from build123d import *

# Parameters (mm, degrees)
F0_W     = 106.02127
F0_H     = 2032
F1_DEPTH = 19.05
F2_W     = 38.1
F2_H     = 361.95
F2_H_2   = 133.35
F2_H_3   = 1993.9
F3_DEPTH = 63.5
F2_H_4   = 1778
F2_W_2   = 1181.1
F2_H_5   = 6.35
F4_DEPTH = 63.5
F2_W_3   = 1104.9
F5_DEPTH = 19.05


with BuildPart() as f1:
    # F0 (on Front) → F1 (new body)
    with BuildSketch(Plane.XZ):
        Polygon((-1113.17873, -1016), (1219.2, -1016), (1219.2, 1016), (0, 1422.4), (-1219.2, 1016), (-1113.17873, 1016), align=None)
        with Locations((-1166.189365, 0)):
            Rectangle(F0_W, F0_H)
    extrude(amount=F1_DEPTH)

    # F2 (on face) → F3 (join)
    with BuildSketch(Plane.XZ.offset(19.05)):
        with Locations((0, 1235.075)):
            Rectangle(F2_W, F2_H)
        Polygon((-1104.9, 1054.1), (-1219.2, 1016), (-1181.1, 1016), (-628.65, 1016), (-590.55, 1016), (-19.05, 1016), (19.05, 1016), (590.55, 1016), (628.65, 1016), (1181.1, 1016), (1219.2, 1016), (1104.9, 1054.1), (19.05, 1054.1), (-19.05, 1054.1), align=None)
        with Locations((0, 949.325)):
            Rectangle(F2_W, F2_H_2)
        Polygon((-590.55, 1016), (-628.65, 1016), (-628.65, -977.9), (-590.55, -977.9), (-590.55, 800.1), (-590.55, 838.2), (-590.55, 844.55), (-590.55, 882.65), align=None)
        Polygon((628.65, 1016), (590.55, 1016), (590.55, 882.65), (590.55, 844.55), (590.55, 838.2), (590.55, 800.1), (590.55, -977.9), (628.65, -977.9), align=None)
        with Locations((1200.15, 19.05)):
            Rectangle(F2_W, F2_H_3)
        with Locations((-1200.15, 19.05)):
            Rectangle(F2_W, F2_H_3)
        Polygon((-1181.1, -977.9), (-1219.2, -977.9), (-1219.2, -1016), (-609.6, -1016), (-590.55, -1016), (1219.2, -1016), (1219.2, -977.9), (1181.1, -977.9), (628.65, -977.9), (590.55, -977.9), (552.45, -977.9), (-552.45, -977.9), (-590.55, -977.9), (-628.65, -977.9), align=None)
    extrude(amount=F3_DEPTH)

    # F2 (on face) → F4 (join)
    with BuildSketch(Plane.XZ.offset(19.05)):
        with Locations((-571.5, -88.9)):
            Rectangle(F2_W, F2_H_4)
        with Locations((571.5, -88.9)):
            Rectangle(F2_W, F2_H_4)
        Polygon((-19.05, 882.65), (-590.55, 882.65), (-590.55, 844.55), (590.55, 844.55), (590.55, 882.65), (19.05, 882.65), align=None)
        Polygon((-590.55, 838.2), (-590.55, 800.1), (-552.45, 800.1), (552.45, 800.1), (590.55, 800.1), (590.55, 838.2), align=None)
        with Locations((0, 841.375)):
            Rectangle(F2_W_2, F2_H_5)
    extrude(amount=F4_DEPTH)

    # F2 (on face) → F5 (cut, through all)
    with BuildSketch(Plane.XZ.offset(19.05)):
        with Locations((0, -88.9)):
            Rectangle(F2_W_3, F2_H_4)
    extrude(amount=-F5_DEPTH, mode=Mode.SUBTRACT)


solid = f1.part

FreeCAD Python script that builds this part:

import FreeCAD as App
import Part
import Sketcher
from FreeCAD import Vector
Q = App.Units.Quantity

doc = App.newDocument("Part")
params = doc.addObject("Spreadsheet::Sheet", "Params")
for row, (alias, value) in enumerate([
    ("sketch1_width", "96 in"),
    ("sketch1_height", "80 in"),
    ("pad1_length", "0.75 in"),
    ("sketch2_width", "96 in"),
    ("sketch2_height", "80 in"),
    ("sketch2_width2", "1.5 in"),
    ("sketch2_width3", "22.5 in"),
    ("sketch2_height2", "78.5 in"),
    ("pad2_length", "2.5 in"),
    ("sketch3_height", "70 in"),
    ("sketch3_width", "1.5 in"),
    ("sketch3_width2", "43.5 in"),
    ("sketch3_height2", "73.25 in"),
    ("pad3_length", "2.5 in"),
    ("sketch4_height", "70 in"),
    ("sketch4_width", "43.5 in"),
], start=1):
    params.set(f"A{row}", alias)
    params.set(f"B{row}", "=" + value)
    params.setAlias(f"B{row}", alias)

body = doc.addObject("PartDesign::Body", "Body")

# Sketch on XZ plane
sketch1 = body.newObject("Sketcher::SketchObject", "Sketch")
sketch1.AttachmentSupport = (doc.getObject("XZ_Plane"), [""])
sketch1.MapMode = "FlatFace"
sketch1.addGeometry(Part.LineSegment(Vector(1219, -1016, 0), Vector(1219, 1016, 0)), False)
sketch1.addGeometry(Part.LineSegment(Vector(1219, 1016, 0), Vector(0, 1422, 0)), False)
sketch1.addGeometry(Part.LineSegment(Vector(0, 1422, 0), Vector(-1219, 1016, 0)), False)
sketch1.addGeometry(Part.LineSegment(Vector(-1219, 1016, 0), Vector(-1219, -1016, 0)), False)
sketch1.addGeometry(Part.LineSegment(Vector(-1219, -1016, 0), Vector(1219, -1016, 0)), False)
sketch1.addConstraint(Sketcher.Constraint("Coincident", 0, 2, 1, 1))
sketch1.addConstraint(Sketcher.Constraint("Coincident", 1, 2, 2, 1))
sketch1.addConstraint(Sketcher.Constraint("Coincident", 2, 2, 3, 1))
sketch1.addConstraint(Sketcher.Constraint("Coincident", 3, 2, 4, 1))
sketch1.addConstraint(Sketcher.Constraint("Coincident", 4, 2, 0, 1))
sketch1.addConstraint(Sketcher.Constraint("Vertical", 0))
sketch1.addConstraint(Sketcher.Constraint("Vertical", 3))
sketch1.addConstraint(Sketcher.Constraint("Horizontal", 4))
sketch1.addConstraint(Sketcher.Constraint("Symmetric", 0, 2, 3, 2, -1, 1))
sketch1.addConstraint(Sketcher.Constraint("PointOnObject", 1, 2, -2))
sketch1.addConstraint(Sketcher.Constraint("Horizontal", 0, 2, 2, 2))
sketch1.addConstraint(Sketcher.Constraint("DistanceX", 4, 1, 4, 2, Q("96 in")))
sketch1.addConstraint(Sketcher.Constraint("DistanceY", 0, 1, 0, 2, Q("80 in")))
sketch1.addConstraint(Sketcher.Constraint("DistanceY", -1, 1, 1, 2, Q("56 in")))
sketch1.setExpression("Constraints[11]", "Params.sketch1_width")
sketch1.setExpression("Constraints[12]", "Params.sketch1_height")
pad1 = body.newObject("PartDesign::Pad", "Pad")
pad1.Profile = sketch1
pad1.setExpression("Length", "Params.pad1_length")

# Sketch on XZ plane
sketch2 = body.newObject("Sketcher::SketchObject", "Sketch001")
sketch2.AttachmentSupport = (doc.getObject("XZ_Plane"), [""])
sketch2.MapMode = "FlatFace"
sketch2.AttachmentOffset = App.Placement(Vector(0, 0, 0.75 * 25.4), App.Rotation())
sketch2.addGeometry(Part.LineSegment(Vector(-19, 1416, 0), Vector(-19, 1054, 0)), False)
sketch2.addGeometry(Part.LineSegment(Vector(-19, 1054, 0), Vector(-1105, 1054, 0)), False)
sketch2.addGeometry(Part.LineSegment(Vector(-1105, 1054, 0), Vector(-1219, 1016, 0)), False)
sketch2.addGeometry(Part.LineSegment(Vector(-1219, 1016, 0), Vector(-1219, -1016, 0)), False)
sketch2.addGeometry(Part.LineSegment(Vector(-1219, -1016, 0), Vector(1219, -1016, 0)), False)
sketch2.addGeometry(Part.LineSegment(Vector(1219, -1016, 0), Vector(1219, 1016, 0)), False)
sketch2.addGeometry(Part.LineSegment(Vector(1219, 1016, 0), Vector(1105, 1054, 0)), False)
sketch2.addGeometry(Part.LineSegment(Vector(1105, 1054, 0), Vector(19, 1054, 0)), False)
sketch2.addGeometry(Part.LineSegment(Vector(19, 1054, 0), Vector(19, 1416, 0)), False)
sketch2.addGeometry(Part.LineSegment(Vector(19, 1416, 0), Vector(-19, 1416, 0)), False)
sketch2.addGeometry(Part.LineSegment(Vector(-1181, -978, 0), Vector(-1181, 1016, 0)), False)
sketch2.addGeometry(Part.LineSegment(Vector(-1181, 1016, 0), Vector(-629, 1016, 0)), False)
sketch2.addGeometry(Part.LineSegment(Vector(-629, 1016, 0), Vector(-629, -978, 0)), False)
sketch2.addGeometry(Part.LineSegment(Vector(-629, -978, 0), Vector(-1181, -978, 0)), False)
sketch2.addGeometry(Part.LineSegment(Vector(-591, -978, 0), Vector(-591, 1016, 0)), False)
sketch2.addGeometry(Part.LineSegment(Vector(-591, 1016, 0), Vector(-19, 1016, 0)), False)
sketch2.addGeometry(Part.LineSegment(Vector(-19, 1016, 0), Vector(-19, 883, 0)), False)
sketch2.addGeometry(Part.LineSegment(Vector(-19, 883, 0), Vector(19, 883, 0)), False)
sketch2.addGeometry(Part.LineSegment(Vector(19, 883, 0), Vector(19, 1016, 0)), False)
sketch2.addGeometry(Part.LineSegment(Vector(19, 1016, 0), Vector(591, 1016, 0)), False)
sketch2.addGeometry(Part.LineSegment(Vector(591, 1016, 0), Vector(591, -978, 0)), False)
sketch2.addGeometry(Part.LineSegment(Vector(591, -978, 0), Vector(-591, -978, 0)), False)
sketch2.addGeometry(Part.LineSegment(Vector(629, -978, 0), Vector(629, 1016, 0)), False)
sketch2.addGeometry(Part.LineSegment(Vector(629, 1016, 0), Vector(1181, 1016, 0)), False)
sketch2.addGeometry(Part.LineSegment(Vector(1181, 1016, 0), Vector(1181, -978, 0)), False)
sketch2.addGeometry(Part.LineSegment(Vector(1181, -978, 0), Vector(629, -978, 0)), False)
sketch2.addConstraint(Sketcher.Constraint("Coincident", 0, 2, 1, 1))
sketch2.addConstraint(Sketcher.Constraint("Coincident", 1, 2, 2, 1))
sketch2.addConstraint(Sketcher.Constraint("Coincident", 2, 2, 3, 1))
sketch2.addConstraint(Sketcher.Constraint("Coincident", 3, 2, 4, 1))
sketch2.addConstraint(Sketcher.Constraint("Coincident", 4, 2, 5, 1))
sketch2.addConstraint(Sketcher.Constraint("Coincident", 5, 2, 6, 1))
sketch2.addConstraint(Sketcher.Constraint("Coincident", 6, 2, 7, 1))
sketch2.addConstraint(Sketcher.Constraint("Coincident", 7, 2, 8, 1))
sketch2.addConstraint(Sketcher.Constraint("Coincident", 8, 2, 9, 1))
sketch2.addConstraint(Sketcher.Constraint("Coincident", 9, 2, 0, 1))
sketch2.addConstraint(Sketcher.Constraint("Coincident", 10, 2, 11, 1))
sketch2.addConstraint(Sketcher.Constraint("Coincident", 11, 2, 12, 1))
sketch2.addConstraint(Sketcher.Constraint("Coincident", 12, 2, 13, 1))
sketch2.addConstraint(Sketcher.Constraint("Coincident", 13, 2, 10, 1))
sketch2.addConstraint(Sketcher.Constraint("Coincident", 14, 2, 15, 1))
sketch2.addConstraint(Sketcher.Constraint("Coincident", 15, 2, 16, 1))
sketch2.addConstraint(Sketcher.Constraint("Coincident", 16, 2, 17, 1))
sketch2.addConstraint(Sketcher.Constraint("Coincident", 17, 2, 18, 1))
sketch2.addConstraint(Sketcher.Constraint("Coincident", 18, 2, 19, 1))
sketch2.addConstraint(Sketcher.Constraint("Coincident", 19, 2, 20, 1))
sketch2.addConstraint(Sketcher.Constraint("Coincident", 20, 2, 21, 1))
sketch2.addConstraint(Sketcher.Constraint("Coincident", 21, 2, 14, 1))
sketch2.addConstraint(Sketcher.Constraint("Coincident", 22, 2, 23, 1))
sketch2.addConstraint(Sketcher.Constraint("Coincident", 23, 2, 24, 1))
sketch2.addConstraint(Sketcher.Constraint("Coincident", 24, 2, 25, 1))
sketch2.addConstraint(Sketcher.Constraint("Coincident", 25, 2, 22, 1))
sketch2.addConstraint(Sketcher.Constraint("Vertical", 0))
sketch2.addConstraint(Sketcher.Constraint("Horizontal", 1))
sketch2.addConstraint(Sketcher.Constraint("Vertical", 3))
sketch2.addConstraint(Sketcher.Constraint("Horizontal", 4))
sketch2.addConstraint(Sketcher.Constraint("Vertical", 5))
sketch2.addConstraint(Sketcher.Constraint("Horizontal", 7))
sketch2.addConstraint(Sketcher.Constraint("Vertical", 8))
sketch2.addConstraint(Sketcher.Constraint("Horizontal", 9))
sketch2.addConstraint(Sketcher.Constraint("Vertical", 10))
sketch2.addConstraint(Sketcher.Constraint("Horizontal", 11))
sketch2.addConstraint(Sketcher.Constraint("Vertical", 12))
sketch2.addConstraint(Sketcher.Constraint("Horizontal", 13))
sketch2.addConstraint(Sketcher.Constraint("Vertical", 14))
sketch2.addConstraint(Sketcher.Constraint("Horizontal", 15))
sketch2.addConstraint(Sketcher.Constraint("Vertical", 16))
sketch2.addConstraint(Sketcher.Constraint("Horizontal", 17))
sketch2.addConstraint(Sketcher.Constraint("Vertical", 18))
sketch2.addConstraint(Sketcher.Constraint("Horizontal", 19))
sketch2.addConstraint(Sketcher.Constraint("Vertical", 20))
sketch2.addConstraint(Sketcher.Constraint("Horizontal", 21))
sketch2.addConstraint(Sketcher.Constraint("Vertical", 22))
sketch2.addConstraint(Sketcher.Constraint("Horizontal", 23))
sketch2.addConstraint(Sketcher.Constraint("Vertical", 24))
sketch2.addConstraint(Sketcher.Constraint("Horizontal", 25))
sketch2.addConstraint(Sketcher.Constraint("Symmetric", 2, 2, 4, 2, -1, 1))
sketch2.addConstraint(Sketcher.Constraint("Symmetric", 1, 2, 6, 2, -2))
sketch2.addConstraint(Sketcher.Constraint("Symmetric", 15, 2, 18, 2, -2))
sketch2.addConstraint(Sketcher.Constraint("Symmetric", 11, 2, 22, 2, -2))
sketch2.addConstraint(Sketcher.Constraint("Symmetric", 13, 2, 24, 2, -2))
sketch2.addConstraint(Sketcher.Constraint("Horizontal", 2, 2, 5, 2))
sketch2.addConstraint(Sketcher.Constraint("Horizontal", 5, 2, 10, 2))
sketch2.addConstraint(Sketcher.Constraint("Horizontal", 11, 2, 14, 2))
sketch2.addConstraint(Sketcher.Constraint("Horizontal", 13, 2, 20, 2))
sketch2.addConstraint(Sketcher.Constraint("Vertical", 9, 2, 15, 2))
sketch2.addConstraint(Sketcher.Constraint("Vertical", 8, 2, 17, 2))
sketch2.addConstraint(Sketcher.Constraint("Equal", 15, 19))
sketch2.addConstraint(Sketcher.Constraint("DistanceX", 4, 1, 4, 2, Q("96 in")))
sketch2.addConstraint(Sketcher.Constraint("DistanceY", 3, 2, 3, 1, Q("80 in")))
sketch2.addConstraint(Sketcher.Constraint("DistanceX", 9, 2, 9, 1, Q("1.5 in")))
sketch2.addConstraint(Sketcher.Constraint("DistanceX", 15, 1, 15, 2, Q("22.5 in")))
sketch2.addConstraint(Sketcher.Constraint("DistanceY", 10, 1, 10, 2, Q("78.5 in")))
sketch2.addConstraint(Sketcher.Constraint("DistanceX", 1, 2, 6, 2, Q("87 in")))
sketch2.addConstraint(Sketcher.Constraint("DistanceX", 10, 2, 1, 2, Q("3 in")))
sketch2.addConstraint(Sketcher.Constraint("DistanceX", 11, 2, 0, 2, Q("24 in")))
sketch2.addConstraint(Sketcher.Constraint("DistanceY", 13, 2, 1, 2, Q("80 in")))
sketch2.addConstraint(Sketcher.Constraint("DistanceY", 16, 2, 9, 2, Q("21 in")))
sketch2.addConstraint(Sketcher.Constraint("DistanceY", 0, 2, 0, 1, Q("14.25 in")))
sketch2.setExpression("Constraints[62]", "Params.sketch2_width")
sketch2.setExpression("Constraints[63]", "Params.sketch2_height")
sketch2.setExpression("Constraints[64]", "Params.sketch2_width2")
sketch2.setExpression("Constraints[65]", "Params.sketch2_width3")
sketch2.setExpression("Constraints[66]", "Params.sketch2_height2")
pad2 = body.newObject("PartDesign::Pad", "Pad001")
pad2.Profile = sketch2
pad2.setExpression("Length", "Params.pad2_length")

# Sketch on XZ plane
sketch3 = body.newObject("Sketcher::SketchObject", "Sketch002")
sketch3.AttachmentSupport = (doc.getObject("XZ_Plane"), [""])
sketch3.MapMode = "FlatFace"
sketch3.AttachmentOffset = App.Placement(Vector(0, 0, 0.75 * 25.4), App.Rotation())
sketch3.addGeometry(Part.LineSegment(Vector(-591, -978, 0), Vector(-552, -978, 0)), False)
sketch3.addGeometry(Part.LineSegment(Vector(-552, -978, 0), Vector(-552, 800, 0)), False)
sketch3.addGeometry(Part.LineSegment(Vector(-552, 800, 0), Vector(552, 800, 0)), False)
sketch3.addGeometry(Part.LineSegment(Vector(552, 800, 0), Vector(552, -978, 0)), False)
sketch3.addGeometry(Part.LineSegment(Vector(552, -978, 0), Vector(591, -978, 0)), False)
sketch3.addGeometry(Part.LineSegment(Vector(591, -978, 0), Vector(591, 883, 0)), False)
sketch3.addGeometry(Part.LineSegment(Vector(591, 883, 0), Vector(-591, 883, 0)), False)
sketch3.addGeometry(Part.LineSegment(Vector(-591, 883, 0), Vector(-591, -978, 0)), False)
sketch3.addConstraint(Sketcher.Constraint("Coincident", 0, 2, 1, 1))
sketch3.addConstraint(Sketcher.Constraint("Coincident", 1, 2, 2, 1))
sketch3.addConstraint(Sketcher.Constraint("Coincident", 2, 2, 3, 1))
sketch3.addConstraint(Sketcher.Constraint("Coincident", 3, 2, 4, 1))
sketch3.addConstraint(Sketcher.Constraint("Coincident", 4, 2, 5, 1))
sketch3.addConstraint(Sketcher.Constraint("Coincident", 5, 2, 6, 1))
sketch3.addConstraint(Sketcher.Constraint("Coincident", 6, 2, 7, 1))
sketch3.addConstraint(Sketcher.Constraint("Coincident", 7, 2, 0, 1))
sketch3.addConstraint(Sketcher.Constraint("Horizontal", 0))
sketch3.addConstraint(Sketcher.Constraint("Vertical", 1))
sketch3.addConstraint(Sketcher.Constraint("Horizontal", 2))
sketch3.addConstraint(Sketcher.Constraint("Vertical", 3))
sketch3.addConstraint(Sketcher.Constraint("Horizontal", 4))
sketch3.addConstraint(Sketcher.Constraint("Vertical", 5))
sketch3.addConstraint(Sketcher.Constraint("Horizontal", 6))
sketch3.addConstraint(Sketcher.Constraint("Vertical", 7))
sketch3.addConstraint(Sketcher.Constraint("Symmetric", 0, 2, 3, 2, -2))
sketch3.addConstraint(Sketcher.Constraint("Equal", 0, 4))
sketch3.addConstraint(Sketcher.Constraint("DistanceY", 1, 1, 1, 2, Q("70 in")))
sketch3.addConstraint(Sketcher.Constraint("DistanceX", 0, 1, 0, 2, Q("1.5 in")))
sketch3.addConstraint(Sketcher.Constraint("DistanceX", 2, 1, 2, 2, Q("43.5 in")))
sketch3.addConstraint(Sketcher.Constraint("DistanceY", 5, 1, 5, 2, Q("73.25 in")))
sketch3.addConstraint(Sketcher.Constraint("DistanceY", 0, 2, -1, 1, Q("38.5 in")))
sketch3.setExpression("Constraints[18]", "Params.sketch3_height")
sketch3.setExpression("Constraints[19]", "Params.sketch3_width")
sketch3.setExpression("Constraints[20]", "Params.sketch3_width2")
sketch3.setExpression("Constraints[21]", "Params.sketch3_height2")
pad3 = body.newObject("PartDesign::Pad", "Pad002")
pad3.Profile = sketch3
pad3.setExpression("Length", "Params.pad3_length")

# Sketch on XZ plane
sketch4 = body.newObject("Sketcher::SketchObject", "Sketch003")
sketch4.AttachmentSupport = (doc.getObject("XZ_Plane"), [""])
sketch4.MapMode = "FlatFace"
sketch4.AttachmentOffset = App.Placement(Vector(0, 0, 0.75 * 25.4), App.Rotation())
sketch4.addGeometry(Part.LineSegment(Vector(-552, 800, 0), Vector(-552, -978, 0)), False)
sketch4.addGeometry(Part.LineSegment(Vector(-552, -978, 0), Vector(552, -978, 0)), False)
sketch4.addGeometry(Part.LineSegment(Vector(552, -978, 0), Vector(552, 800, 0)), False)
sketch4.addGeometry(Part.LineSegment(Vector(552, 800, 0), Vector(-552, 800, 0)), False)
sketch4.addConstraint(Sketcher.Constraint("Coincident", 0, 2, 1, 1))
sketch4.addConstraint(Sketcher.Constraint("Coincident", 1, 2, 2, 1))
sketch4.addConstraint(Sketcher.Constraint("Coincident", 2, 2, 3, 1))
sketch4.addConstraint(Sketcher.Constraint("Coincident", 3, 2, 0, 1))
sketch4.addConstraint(Sketcher.Constraint("Vertical", 0))
sketch4.addConstraint(Sketcher.Constraint("Horizontal", 1))
sketch4.addConstraint(Sketcher.Constraint("Vertical", 2))
sketch4.addConstraint(Sketcher.Constraint("Horizontal", 3))
sketch4.addConstraint(Sketcher.Constraint("DistanceY", 0, 2, 0, 1, Q("70 in")))
sketch4.addConstraint(Sketcher.Constraint("DistanceX", 1, 1, 1, 2, Q("43.5 in")))
sketch4.addConstraint(Sketcher.Constraint("DistanceY", 0, 2, -1, 1, Q("38.5 in")))
sketch4.addConstraint(Sketcher.Constraint("DistanceX", 0, 2, -1, 1, Q("21.75 in")))
sketch4.setExpression("Constraints[8]", "Params.sketch4_height")
sketch4.setExpression("Constraints[9]", "Params.sketch4_width")
pocket1 = body.newObject("PartDesign::Pocket", "Pocket")
pocket1.Profile = sketch4
pocket1.Type = "ThroughAll"

doc.recompute()
